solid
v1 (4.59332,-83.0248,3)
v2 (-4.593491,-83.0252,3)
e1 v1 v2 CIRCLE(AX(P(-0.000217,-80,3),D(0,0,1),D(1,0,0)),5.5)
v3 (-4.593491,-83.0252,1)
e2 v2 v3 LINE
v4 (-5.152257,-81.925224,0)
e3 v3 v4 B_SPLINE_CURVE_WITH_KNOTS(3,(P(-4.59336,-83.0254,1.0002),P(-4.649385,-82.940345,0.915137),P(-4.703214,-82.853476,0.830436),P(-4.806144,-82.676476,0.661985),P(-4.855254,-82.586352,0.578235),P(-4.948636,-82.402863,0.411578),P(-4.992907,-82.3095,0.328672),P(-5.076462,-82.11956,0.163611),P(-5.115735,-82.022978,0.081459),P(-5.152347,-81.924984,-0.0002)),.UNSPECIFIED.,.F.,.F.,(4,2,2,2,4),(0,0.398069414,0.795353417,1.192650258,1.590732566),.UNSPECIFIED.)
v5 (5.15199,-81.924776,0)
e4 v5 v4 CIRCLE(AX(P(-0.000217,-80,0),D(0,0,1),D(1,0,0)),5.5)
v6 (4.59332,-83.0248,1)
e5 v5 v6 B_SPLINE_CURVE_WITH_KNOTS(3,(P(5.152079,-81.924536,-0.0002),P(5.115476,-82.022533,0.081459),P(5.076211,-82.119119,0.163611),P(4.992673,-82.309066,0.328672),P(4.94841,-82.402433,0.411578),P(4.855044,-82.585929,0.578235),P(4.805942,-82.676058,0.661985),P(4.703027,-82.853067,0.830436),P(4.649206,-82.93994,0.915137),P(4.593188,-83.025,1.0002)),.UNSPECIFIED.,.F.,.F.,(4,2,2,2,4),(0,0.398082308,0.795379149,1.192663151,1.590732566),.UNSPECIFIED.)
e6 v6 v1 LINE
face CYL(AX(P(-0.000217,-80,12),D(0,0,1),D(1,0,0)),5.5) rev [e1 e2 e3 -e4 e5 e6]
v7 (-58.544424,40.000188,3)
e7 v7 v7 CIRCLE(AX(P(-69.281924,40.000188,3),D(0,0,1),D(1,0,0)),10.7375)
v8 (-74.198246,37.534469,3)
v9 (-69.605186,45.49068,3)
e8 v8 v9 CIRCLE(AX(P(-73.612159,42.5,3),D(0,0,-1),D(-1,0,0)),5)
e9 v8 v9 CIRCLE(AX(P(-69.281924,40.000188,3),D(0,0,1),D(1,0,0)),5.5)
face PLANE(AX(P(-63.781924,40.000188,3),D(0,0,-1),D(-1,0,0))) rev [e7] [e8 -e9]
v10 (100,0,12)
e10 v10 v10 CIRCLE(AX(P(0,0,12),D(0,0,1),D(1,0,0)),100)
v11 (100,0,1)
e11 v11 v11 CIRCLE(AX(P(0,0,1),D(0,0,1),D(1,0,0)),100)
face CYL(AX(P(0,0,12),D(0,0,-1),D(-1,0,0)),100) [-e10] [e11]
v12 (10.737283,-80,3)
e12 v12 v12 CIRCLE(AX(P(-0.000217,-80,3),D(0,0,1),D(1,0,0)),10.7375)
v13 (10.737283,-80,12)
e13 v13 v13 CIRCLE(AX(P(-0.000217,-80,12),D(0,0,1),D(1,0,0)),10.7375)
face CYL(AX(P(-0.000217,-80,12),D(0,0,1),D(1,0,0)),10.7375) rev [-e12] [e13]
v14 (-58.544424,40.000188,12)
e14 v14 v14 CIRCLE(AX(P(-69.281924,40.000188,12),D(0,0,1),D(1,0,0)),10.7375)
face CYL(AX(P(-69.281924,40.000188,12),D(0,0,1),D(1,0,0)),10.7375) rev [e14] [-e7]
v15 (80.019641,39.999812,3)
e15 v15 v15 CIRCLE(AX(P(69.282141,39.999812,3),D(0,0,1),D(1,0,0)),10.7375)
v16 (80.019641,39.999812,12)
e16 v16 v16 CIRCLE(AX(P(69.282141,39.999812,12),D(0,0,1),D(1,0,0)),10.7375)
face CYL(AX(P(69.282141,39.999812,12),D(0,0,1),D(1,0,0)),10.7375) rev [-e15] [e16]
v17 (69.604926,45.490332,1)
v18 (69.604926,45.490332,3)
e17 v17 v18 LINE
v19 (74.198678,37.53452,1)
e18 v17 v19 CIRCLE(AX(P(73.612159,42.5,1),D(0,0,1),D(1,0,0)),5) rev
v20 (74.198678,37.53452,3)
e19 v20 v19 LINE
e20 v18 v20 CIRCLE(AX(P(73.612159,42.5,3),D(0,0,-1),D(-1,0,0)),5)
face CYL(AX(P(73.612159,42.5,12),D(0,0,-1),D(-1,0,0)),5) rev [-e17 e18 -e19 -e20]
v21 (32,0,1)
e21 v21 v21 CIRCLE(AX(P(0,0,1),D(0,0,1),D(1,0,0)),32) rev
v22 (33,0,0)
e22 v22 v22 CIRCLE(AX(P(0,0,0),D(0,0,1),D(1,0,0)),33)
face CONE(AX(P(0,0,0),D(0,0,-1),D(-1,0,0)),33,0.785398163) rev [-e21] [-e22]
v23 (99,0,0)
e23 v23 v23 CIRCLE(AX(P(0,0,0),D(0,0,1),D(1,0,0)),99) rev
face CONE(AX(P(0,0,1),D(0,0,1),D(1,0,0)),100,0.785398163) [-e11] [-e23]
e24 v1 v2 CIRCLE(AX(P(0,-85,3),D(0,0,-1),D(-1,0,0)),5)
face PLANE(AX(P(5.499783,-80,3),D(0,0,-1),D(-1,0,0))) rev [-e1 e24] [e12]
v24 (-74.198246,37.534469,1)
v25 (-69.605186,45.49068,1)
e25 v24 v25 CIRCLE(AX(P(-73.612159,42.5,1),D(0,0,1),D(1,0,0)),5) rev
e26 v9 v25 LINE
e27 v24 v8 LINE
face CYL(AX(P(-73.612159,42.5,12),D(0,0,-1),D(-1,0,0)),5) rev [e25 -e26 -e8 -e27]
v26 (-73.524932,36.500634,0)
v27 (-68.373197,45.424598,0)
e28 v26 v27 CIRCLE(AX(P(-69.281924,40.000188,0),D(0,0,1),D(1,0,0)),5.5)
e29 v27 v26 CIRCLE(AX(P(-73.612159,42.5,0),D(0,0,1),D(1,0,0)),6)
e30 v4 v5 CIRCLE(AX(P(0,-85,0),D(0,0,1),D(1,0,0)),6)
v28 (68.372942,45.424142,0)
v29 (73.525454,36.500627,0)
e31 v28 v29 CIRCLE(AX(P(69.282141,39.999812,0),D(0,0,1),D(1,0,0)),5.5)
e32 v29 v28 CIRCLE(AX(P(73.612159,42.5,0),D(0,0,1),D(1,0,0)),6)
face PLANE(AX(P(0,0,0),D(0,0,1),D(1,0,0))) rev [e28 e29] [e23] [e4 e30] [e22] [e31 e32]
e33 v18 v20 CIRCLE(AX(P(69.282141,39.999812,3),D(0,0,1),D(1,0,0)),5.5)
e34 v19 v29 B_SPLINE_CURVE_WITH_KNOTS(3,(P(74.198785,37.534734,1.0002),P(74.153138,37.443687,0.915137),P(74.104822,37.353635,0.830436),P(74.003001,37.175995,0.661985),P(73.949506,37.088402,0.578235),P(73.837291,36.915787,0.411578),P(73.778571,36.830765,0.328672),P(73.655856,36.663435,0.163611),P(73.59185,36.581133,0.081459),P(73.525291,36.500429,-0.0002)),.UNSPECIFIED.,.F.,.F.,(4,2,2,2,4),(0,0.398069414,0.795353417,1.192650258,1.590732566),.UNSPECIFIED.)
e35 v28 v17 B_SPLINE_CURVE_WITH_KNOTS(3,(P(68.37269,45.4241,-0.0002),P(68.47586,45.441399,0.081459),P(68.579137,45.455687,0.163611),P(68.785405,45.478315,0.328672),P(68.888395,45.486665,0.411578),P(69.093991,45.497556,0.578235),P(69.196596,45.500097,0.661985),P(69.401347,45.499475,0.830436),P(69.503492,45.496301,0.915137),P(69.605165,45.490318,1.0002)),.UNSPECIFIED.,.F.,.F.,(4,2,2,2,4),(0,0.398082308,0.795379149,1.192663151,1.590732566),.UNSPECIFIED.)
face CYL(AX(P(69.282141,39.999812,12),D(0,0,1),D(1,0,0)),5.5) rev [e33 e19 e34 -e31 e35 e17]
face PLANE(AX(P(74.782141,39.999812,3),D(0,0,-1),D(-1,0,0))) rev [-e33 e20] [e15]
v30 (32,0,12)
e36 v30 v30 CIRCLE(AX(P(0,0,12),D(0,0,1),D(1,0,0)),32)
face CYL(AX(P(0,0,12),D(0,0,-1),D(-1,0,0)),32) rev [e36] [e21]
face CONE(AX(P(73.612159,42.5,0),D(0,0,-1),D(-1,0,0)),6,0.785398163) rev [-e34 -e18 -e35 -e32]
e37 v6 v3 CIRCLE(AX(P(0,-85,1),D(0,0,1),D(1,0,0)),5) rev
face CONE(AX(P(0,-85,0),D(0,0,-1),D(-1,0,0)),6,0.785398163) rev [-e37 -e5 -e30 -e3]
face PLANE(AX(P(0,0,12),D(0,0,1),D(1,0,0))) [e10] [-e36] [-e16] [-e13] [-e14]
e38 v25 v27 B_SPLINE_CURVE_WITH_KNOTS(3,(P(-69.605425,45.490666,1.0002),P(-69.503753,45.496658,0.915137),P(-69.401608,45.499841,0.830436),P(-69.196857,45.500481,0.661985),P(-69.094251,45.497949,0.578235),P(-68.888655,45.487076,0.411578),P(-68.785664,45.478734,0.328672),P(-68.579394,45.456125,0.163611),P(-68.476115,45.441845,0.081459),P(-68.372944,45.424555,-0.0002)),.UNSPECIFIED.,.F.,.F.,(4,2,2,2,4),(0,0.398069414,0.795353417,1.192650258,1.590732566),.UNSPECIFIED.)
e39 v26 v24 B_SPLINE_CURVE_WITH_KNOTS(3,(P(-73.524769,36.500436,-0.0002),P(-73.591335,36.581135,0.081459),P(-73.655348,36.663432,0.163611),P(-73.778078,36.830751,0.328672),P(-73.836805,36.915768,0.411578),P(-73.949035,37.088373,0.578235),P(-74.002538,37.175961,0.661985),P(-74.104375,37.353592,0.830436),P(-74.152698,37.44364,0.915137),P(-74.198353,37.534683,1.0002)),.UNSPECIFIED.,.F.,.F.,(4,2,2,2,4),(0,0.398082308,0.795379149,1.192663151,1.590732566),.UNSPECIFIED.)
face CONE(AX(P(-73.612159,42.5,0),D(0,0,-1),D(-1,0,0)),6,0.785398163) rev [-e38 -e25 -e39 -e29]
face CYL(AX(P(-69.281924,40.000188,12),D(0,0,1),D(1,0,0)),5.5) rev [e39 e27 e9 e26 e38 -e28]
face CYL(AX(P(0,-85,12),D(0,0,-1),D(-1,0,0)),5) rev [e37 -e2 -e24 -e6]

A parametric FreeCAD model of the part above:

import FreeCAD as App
import Part
import Sketcher

V = App.Vector


def edges_at(feature, points):
    """Names of the edges that pass closest to the given points."""
    edges = feature.Shape.Edges
    near = lambda p: min(range(len(edges)), key=lambda i: edges[i].distToShape(Part.Vertex(*p))[0])
    return sorted({f"Edge{near(p) + 1}" for p in points})

doc = App.newDocument("Part")
body = doc.addObject("PartDesign::Body", "Body")

# Sketch on XY plane
sketch1 = body.newObject("Sketcher::SketchObject", "Sketch")
sketch1.AttachmentSupport = (doc.getObject("XY_Plane"), [""])
sketch1.MapMode = "FlatFace"
sketch1.addGeometry([
    Part.Circle(V(0, 0, 0), V(0, 0, 1), 100),  # 0
    Part.Circle(V(0, -85, 0), V(0, 0, 1), 5),  # 1
    Part.Circle(V(-74, 42, 0), V(0, 0, 1), 5),  # 2
    Part.Circle(V(0, 0, 0), V(0, 0, 1), 32),  # 3
    Part.Circle(V(74, 42, 0), V(0, 0, 1), 5),  # 4
], False)
sketch1.addConstraint([
    Sketcher.Constraint("Coincident", 0, 3, -1, 1),
    Sketcher.Constraint("Coincident", 3, 3, -1, 1),
    Sketcher.Constraint("Equal", 1, 2),
    Sketcher.Constraint("Equal", 2, 4),
    Sketcher.Constraint("Symmetric", 2, 3, 4, 3, -2),
    Sketcher.Constraint("PointOnObject", 1, 3, -2),
    Sketcher.Constraint("Diameter", 0, 200.0),
    Sketcher.Constraint("Diameter", 1, 10.0),
    Sketcher.Constraint("Diameter", 3, 64.0),
    Sketcher.Constraint("DistanceY", 1, 3, -1, 1, 85.0),
    Sketcher.Constraint("DistanceY", -1, 1, 2, 3, 42.5),
    Sketcher.Constraint("DistanceX", 2, 3, -1, 1, 73.612159),
])
pad1 = body.newObject("PartDesign::Pad", "Pad")
pad1.Profile = sketch1
pad1.Length = 12
doc.recompute()

chamfer = body.newObject("PartDesign::Chamfer", "Chamfer")
chamfer.Base = (pad1, edges_at(pad1, [
    (68.612, 42.5, 0),
    (-5, -85, 0),
    (-100, 0, 0),
    (-32, 0, 0),
    (-78.612, 42.5, 0),
]))
chamfer.Size = 1

# Sketch on XY plane
sketch2 = body.newObject("Sketcher::SketchObject", "Sketch001")
sketch2.AttachmentSupport = (doc.getObject("XY_Plane"), [""])
sketch2.MapMode = "FlatFace"
sketch2.AttachmentOffset = App.Placement(V(0, 0, 12), App.Rotation())
sketch2.addGeometry([
    Part.Circle(V(-69, 40, 0), V(0, 0, 1), 6),
    Part.Circle(V(0, -80, 0), V(0, 0, 1), 6),
    Part.Circle(V(69, 40, 0), V(0, 0, 1), 6),
], False)
sketch2.addConstraint([
    Sketcher.Constraint("Equal", 0, 1),
    Sketcher.Constraint("Equal", 1, 2),
    Sketcher.Constraint("Diameter", 0, 11.0),
    Sketcher.Constraint("DistanceY", 1, 3, -1, 1, 80.0),
    Sketcher.Constraint("DistanceY", -1, 1, 0, 3, 40.000188),
    Sketcher.Constraint("DistanceX", -1, 1, 2, 3, 69.282141),
    Sketcher.Constraint("DistanceY", -1, 1, 2, 3, 39.999812),
    Sketcher.Constraint("DistanceX", 1, 3, 2, 3, 69.282358),
    Sketcher.Constraint("DistanceX", 0, 3, -1, 1, 69.281924),
])
doc.recompute()
hole = body.newObject("PartDesign::Hole", "Hole")
hole.Profile = sketch2
hole.ThreadType = "None"
hole.Diameter = 11
hole.DepthType = "ThroughAll"
hole.HoleCutType = "Counterbore"
hole.HoleCutDiameter = 21.475
hole.HoleCutDepth = 9

doc.recompute()
